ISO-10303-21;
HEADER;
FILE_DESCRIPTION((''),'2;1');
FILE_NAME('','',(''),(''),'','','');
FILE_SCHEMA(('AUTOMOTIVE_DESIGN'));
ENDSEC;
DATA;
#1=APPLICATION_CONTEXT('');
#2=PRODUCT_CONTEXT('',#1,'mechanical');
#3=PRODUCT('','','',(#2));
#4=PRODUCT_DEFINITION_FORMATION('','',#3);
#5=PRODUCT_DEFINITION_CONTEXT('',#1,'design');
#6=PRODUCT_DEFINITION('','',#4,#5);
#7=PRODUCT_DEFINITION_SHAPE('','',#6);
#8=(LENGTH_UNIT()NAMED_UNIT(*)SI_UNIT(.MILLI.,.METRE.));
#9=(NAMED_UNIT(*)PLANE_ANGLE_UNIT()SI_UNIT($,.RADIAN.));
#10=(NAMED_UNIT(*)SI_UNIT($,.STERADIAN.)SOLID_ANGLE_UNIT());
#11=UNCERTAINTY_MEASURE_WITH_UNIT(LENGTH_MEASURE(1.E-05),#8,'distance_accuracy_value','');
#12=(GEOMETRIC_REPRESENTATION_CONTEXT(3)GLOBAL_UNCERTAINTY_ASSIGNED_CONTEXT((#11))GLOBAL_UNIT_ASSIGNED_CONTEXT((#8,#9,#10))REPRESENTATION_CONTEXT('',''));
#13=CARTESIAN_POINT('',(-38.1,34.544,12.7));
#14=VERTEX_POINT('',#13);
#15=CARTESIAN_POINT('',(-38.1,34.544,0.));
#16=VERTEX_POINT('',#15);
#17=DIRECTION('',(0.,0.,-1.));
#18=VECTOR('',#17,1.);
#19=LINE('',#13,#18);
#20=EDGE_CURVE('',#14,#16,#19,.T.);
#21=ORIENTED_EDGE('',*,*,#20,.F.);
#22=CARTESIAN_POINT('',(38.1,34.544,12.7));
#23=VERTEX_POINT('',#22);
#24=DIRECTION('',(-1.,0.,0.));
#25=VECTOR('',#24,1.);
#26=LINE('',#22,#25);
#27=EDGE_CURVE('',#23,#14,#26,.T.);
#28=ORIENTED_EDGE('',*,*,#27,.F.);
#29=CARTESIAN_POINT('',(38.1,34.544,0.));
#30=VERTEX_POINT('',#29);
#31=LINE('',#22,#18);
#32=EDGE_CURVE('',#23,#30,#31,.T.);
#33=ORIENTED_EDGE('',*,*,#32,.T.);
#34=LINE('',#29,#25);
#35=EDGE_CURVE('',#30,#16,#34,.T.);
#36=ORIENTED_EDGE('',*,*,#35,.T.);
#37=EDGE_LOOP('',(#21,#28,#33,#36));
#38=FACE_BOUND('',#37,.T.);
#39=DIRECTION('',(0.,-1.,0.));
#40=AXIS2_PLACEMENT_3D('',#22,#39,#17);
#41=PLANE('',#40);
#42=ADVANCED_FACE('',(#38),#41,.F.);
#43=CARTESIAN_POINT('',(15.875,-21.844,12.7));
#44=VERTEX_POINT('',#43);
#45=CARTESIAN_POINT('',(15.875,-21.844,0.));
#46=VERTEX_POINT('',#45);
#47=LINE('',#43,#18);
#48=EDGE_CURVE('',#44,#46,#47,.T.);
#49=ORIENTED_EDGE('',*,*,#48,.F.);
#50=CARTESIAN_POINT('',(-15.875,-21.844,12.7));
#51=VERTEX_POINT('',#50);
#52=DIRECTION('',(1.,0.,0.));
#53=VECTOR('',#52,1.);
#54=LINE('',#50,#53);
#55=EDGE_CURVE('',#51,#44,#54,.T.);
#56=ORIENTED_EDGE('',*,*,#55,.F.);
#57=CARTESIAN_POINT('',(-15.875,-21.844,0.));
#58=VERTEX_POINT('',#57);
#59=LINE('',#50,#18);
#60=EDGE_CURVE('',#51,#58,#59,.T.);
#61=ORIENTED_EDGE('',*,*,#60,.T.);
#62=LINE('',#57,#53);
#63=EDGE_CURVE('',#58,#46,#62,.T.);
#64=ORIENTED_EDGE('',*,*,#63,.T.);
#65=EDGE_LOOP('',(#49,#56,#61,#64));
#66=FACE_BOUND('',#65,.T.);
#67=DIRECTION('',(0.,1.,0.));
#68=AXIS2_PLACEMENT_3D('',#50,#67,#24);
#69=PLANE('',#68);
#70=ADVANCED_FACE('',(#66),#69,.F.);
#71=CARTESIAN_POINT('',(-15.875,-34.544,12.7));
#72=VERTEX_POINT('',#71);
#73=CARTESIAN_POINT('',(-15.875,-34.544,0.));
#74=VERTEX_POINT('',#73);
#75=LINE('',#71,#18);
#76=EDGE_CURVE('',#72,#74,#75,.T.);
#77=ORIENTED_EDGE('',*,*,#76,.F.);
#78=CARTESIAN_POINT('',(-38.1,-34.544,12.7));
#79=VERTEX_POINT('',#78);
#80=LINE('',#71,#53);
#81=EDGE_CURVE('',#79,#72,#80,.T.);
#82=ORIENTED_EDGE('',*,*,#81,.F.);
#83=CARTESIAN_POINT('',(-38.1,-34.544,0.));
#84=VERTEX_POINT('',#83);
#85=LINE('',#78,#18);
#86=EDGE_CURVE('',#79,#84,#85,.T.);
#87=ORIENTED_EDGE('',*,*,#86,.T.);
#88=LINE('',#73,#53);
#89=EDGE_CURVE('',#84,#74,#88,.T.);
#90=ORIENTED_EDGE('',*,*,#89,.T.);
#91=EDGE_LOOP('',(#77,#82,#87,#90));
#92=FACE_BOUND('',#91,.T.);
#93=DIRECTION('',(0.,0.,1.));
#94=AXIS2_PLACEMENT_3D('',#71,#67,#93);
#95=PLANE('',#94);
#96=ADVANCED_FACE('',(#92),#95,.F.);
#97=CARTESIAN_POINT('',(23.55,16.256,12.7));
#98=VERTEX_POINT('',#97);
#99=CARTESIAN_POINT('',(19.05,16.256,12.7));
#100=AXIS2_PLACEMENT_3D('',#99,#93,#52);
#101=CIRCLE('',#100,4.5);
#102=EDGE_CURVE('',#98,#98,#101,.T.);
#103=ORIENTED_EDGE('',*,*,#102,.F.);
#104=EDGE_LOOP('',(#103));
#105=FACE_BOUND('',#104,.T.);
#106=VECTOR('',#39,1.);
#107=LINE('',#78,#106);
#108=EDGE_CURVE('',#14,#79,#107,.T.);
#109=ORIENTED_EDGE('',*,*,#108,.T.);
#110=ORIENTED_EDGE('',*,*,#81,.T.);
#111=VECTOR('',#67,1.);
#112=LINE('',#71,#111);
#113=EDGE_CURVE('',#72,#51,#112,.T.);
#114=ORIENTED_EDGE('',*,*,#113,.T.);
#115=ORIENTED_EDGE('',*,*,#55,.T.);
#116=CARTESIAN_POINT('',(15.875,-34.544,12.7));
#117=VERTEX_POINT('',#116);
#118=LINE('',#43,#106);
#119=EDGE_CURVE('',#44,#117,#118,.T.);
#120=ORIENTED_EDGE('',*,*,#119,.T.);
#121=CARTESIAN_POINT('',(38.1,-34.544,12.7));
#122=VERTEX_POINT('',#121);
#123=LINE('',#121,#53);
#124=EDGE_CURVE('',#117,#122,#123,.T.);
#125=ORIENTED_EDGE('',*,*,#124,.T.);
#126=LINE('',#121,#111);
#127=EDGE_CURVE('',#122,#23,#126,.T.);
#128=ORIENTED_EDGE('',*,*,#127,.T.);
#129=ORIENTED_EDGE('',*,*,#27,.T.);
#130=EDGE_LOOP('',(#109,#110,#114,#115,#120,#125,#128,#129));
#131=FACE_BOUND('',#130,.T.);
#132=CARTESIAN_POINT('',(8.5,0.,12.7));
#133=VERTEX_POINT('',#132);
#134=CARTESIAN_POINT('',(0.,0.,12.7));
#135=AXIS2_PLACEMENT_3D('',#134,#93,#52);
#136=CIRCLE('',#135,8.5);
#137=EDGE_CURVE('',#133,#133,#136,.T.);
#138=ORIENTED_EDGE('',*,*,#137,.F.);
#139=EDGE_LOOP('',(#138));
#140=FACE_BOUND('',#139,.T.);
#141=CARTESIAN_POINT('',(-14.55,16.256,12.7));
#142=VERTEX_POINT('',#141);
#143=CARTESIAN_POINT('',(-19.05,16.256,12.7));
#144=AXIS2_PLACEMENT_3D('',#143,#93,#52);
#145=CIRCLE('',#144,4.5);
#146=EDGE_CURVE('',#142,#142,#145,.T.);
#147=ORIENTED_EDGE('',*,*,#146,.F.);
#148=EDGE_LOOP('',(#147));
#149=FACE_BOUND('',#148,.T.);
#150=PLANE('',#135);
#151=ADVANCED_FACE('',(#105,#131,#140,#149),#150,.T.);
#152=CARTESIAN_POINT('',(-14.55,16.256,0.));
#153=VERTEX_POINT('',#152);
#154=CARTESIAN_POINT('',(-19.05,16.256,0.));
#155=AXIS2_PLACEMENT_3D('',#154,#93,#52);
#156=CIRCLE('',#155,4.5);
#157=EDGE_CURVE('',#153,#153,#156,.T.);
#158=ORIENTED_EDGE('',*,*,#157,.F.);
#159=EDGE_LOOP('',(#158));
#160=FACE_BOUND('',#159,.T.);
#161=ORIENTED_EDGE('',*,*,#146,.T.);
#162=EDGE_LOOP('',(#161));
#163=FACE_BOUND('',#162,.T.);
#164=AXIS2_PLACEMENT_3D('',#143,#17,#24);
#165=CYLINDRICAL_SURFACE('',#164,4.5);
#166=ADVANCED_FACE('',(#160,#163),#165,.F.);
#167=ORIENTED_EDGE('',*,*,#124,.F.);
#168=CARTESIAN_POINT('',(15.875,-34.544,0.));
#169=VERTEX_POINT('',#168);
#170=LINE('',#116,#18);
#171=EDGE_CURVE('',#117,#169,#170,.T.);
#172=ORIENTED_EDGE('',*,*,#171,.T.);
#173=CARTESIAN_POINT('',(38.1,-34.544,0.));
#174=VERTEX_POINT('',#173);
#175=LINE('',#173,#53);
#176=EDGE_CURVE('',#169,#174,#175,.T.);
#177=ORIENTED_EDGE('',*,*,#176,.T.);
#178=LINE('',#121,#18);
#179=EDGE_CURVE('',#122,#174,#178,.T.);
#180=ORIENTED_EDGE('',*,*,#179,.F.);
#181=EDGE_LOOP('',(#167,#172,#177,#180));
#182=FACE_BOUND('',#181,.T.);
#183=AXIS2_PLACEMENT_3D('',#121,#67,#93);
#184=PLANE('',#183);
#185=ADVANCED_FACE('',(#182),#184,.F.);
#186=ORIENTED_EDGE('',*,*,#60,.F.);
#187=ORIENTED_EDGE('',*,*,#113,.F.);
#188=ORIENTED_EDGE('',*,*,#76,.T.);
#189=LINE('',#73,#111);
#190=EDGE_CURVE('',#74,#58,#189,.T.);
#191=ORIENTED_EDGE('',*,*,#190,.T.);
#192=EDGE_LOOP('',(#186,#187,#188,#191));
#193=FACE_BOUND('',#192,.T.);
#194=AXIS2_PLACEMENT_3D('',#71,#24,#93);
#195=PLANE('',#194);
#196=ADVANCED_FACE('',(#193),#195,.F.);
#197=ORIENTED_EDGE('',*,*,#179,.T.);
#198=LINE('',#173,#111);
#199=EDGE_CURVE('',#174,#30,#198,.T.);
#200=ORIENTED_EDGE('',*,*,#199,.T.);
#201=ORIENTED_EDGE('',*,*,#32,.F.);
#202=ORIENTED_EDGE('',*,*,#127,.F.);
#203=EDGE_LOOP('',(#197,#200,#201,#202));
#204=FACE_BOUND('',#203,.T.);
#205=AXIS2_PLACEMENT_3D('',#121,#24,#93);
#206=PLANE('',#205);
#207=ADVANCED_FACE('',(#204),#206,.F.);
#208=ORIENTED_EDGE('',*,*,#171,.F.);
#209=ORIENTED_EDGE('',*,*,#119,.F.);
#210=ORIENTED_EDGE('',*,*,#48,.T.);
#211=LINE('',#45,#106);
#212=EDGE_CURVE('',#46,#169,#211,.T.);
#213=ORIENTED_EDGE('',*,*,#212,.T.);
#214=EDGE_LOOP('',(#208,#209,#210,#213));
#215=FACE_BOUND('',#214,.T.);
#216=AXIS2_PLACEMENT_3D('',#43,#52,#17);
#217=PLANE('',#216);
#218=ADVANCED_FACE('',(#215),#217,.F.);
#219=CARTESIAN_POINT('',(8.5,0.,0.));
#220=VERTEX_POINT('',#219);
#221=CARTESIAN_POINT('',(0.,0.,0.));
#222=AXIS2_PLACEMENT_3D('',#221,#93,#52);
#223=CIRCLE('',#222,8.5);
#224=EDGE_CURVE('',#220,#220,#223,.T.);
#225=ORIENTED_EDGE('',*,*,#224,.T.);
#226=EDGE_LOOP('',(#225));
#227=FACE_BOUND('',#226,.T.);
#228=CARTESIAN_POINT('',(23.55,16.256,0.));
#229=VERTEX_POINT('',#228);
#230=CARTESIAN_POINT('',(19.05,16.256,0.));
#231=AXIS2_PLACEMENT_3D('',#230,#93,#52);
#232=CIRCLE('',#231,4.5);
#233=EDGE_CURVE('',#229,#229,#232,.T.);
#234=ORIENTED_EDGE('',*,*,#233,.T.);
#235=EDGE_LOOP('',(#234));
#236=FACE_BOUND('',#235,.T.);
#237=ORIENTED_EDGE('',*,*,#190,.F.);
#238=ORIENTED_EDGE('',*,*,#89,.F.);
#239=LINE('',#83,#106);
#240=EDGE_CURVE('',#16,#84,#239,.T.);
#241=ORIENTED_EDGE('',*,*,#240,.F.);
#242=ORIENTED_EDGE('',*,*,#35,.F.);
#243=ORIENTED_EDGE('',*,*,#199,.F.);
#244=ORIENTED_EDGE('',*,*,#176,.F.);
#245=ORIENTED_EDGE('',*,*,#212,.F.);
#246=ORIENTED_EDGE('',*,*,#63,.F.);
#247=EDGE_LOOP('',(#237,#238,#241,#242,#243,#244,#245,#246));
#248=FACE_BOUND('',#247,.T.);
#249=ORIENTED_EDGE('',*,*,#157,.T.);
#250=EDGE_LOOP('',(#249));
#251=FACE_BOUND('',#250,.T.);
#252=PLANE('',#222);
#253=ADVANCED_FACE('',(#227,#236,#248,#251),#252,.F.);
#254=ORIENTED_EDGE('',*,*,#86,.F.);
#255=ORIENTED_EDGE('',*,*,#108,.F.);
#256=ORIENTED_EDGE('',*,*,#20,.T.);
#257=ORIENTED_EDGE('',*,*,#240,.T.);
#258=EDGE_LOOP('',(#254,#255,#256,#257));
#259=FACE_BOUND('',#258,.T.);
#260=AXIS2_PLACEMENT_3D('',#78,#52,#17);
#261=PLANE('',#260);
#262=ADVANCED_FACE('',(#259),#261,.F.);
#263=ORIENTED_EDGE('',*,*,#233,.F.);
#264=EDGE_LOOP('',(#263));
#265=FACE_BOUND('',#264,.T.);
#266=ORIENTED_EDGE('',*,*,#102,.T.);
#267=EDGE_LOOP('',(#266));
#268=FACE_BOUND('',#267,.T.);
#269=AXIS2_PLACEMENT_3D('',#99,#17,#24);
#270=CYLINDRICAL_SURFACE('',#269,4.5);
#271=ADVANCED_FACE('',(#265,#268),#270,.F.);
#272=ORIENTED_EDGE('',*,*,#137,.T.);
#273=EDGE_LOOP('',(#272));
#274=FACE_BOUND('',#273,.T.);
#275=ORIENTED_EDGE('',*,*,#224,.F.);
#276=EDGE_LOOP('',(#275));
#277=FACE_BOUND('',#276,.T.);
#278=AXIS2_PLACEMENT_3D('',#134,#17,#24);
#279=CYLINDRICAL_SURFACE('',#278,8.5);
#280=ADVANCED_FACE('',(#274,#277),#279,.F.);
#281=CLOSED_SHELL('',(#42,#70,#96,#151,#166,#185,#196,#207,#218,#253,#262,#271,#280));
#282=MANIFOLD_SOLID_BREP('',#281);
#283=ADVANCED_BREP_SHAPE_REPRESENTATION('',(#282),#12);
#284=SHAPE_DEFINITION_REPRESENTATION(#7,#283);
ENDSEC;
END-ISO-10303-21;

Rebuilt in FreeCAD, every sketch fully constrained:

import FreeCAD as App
import Part
import Sketcher
Q = App.Units.Quantity


def add_polygon(sketch, points):
    """Adds a closed chain of lines whose ends are joined by coincident constraints."""
    first, n = sketch.GeometryCount, len(points)
    for a, b in zip(points, points[1:] + points[:1]):
        sketch.addGeometry(Part.LineSegment(App.Vector(*a, 0), App.Vector(*b, 0)), False)
    for i in range(n):
        sketch.addConstraint(Sketcher.Constraint("Coincident", first + i, 2, first + (i + 1) % n, 1))

doc = App.newDocument("Part")
params = doc.addObject("Spreadsheet::Sheet", "Params")
for row, (alias, value) in enumerate([
    ("sketch1_width", "3 in"),
    ("sketch1_height", "0.5 in"),
    ("sketch1_width2", "1.25 in"),
    ("sketch1_height2", "2.72 in"),
    ("pad1_length", "0.5 in"),
], start=1):
    params.set(f"A{row}", alias)
    params.set(f"B{row}", "=" + value)
    params.setAlias(f"B{row}", alias)

body = doc.addObject("PartDesign::Body", "Body")

# Sketch on XY plane
sketch1 = body.newObject("Sketcher::SketchObject", "Sketch")
sketch1.AttachmentSupport = (doc.getObject("XY_Plane"), [""])
sketch1.MapMode = "FlatFace"
add_polygon(sketch1, [(-15.9, -34.5), (-15.9, -21.8), (15.9, -21.8), (15.9, -34.5), (38.1, -34.5), (38.1, 34.5), (-38.1, 34.5), (-38.1, -34.5)])  # lines 0-7
sketch1.addGeometry(Part.Circle(App.Vector(0, 0, 0), App.Vector(0, 0, 1), 8.5), False)  # 8
sketch1.addGeometry(Part.Circle(App.Vector(-19.1, 16.3, 0), App.Vector(0, 0, 1), 4.5), False)  # 9
sketch1.addGeometry(Part.Circle(App.Vector(19.1, 16.3, 0), App.Vector(0, 0, 1), 4.5), False)  # 10
sketch1.addConstraint([
    Sketcher.Constraint("Vertical", 0),
    Sketcher.Constraint("Horizontal", 1),
    Sketcher.Constraint("Vertical", 2),
    Sketcher.Constraint("Horizontal", 3),
    Sketcher.Constraint("Vertical", 4),
    Sketcher.Constraint("Horizontal", 5),
    Sketcher.Constraint("Vertical", 6),
    Sketcher.Constraint("Horizontal", 7),
    Sketcher.Constraint("Coincident", 8, 3, -1, 1),
    Sketcher.Constraint("Equal", 9, 10),
    Sketcher.Constraint("Symmetric", 3, 2, 5, 2, -1, 1),
    Sketcher.Constraint("Symmetric", 9, 3, 10, 3, -2),
    Sketcher.Constraint("Symmetric", 2, 2, 7, 2, -2),
    Sketcher.Constraint("DistanceX", 5, 2, 5, 1, Q("3 in")),
    Sketcher.Constraint("DistanceY", 0, 1, 0, 2, Q("0.5 in")),
    Sketcher.Constraint("DistanceY", 2, 2, 10, 3, Q("2 in")),
    Sketcher.Constraint("DistanceX", 1, 1, 1, 2, Q("1.25 in")),
    Sketcher.Constraint("DistanceY", 4, 1, 4, 2, Q("2.72 in")),
    Sketcher.Constraint("DistanceX", 9, 3, 10, 3, Q("1.5 in")),
    Sketcher.Constraint("Diameter", 8, 17.0),
    Sketcher.Constraint("Diameter", 9, 9.0),
])
sketch1.setExpression("Constraints[21]", "Params.sketch1_width")
sketch1.setExpression("Constraints[22]", "Params.sketch1_height")
sketch1.setExpression("Constraints[24]", "Params.sketch1_width2")
sketch1.setExpression("Constraints[25]", "Params.sketch1_height2")
pad1 = body.newObject("PartDesign::Pad", "Pad")
pad1.Profile = sketch1
pad1.setExpression("Length", "Params.pad1_length")

doc.recompute()
